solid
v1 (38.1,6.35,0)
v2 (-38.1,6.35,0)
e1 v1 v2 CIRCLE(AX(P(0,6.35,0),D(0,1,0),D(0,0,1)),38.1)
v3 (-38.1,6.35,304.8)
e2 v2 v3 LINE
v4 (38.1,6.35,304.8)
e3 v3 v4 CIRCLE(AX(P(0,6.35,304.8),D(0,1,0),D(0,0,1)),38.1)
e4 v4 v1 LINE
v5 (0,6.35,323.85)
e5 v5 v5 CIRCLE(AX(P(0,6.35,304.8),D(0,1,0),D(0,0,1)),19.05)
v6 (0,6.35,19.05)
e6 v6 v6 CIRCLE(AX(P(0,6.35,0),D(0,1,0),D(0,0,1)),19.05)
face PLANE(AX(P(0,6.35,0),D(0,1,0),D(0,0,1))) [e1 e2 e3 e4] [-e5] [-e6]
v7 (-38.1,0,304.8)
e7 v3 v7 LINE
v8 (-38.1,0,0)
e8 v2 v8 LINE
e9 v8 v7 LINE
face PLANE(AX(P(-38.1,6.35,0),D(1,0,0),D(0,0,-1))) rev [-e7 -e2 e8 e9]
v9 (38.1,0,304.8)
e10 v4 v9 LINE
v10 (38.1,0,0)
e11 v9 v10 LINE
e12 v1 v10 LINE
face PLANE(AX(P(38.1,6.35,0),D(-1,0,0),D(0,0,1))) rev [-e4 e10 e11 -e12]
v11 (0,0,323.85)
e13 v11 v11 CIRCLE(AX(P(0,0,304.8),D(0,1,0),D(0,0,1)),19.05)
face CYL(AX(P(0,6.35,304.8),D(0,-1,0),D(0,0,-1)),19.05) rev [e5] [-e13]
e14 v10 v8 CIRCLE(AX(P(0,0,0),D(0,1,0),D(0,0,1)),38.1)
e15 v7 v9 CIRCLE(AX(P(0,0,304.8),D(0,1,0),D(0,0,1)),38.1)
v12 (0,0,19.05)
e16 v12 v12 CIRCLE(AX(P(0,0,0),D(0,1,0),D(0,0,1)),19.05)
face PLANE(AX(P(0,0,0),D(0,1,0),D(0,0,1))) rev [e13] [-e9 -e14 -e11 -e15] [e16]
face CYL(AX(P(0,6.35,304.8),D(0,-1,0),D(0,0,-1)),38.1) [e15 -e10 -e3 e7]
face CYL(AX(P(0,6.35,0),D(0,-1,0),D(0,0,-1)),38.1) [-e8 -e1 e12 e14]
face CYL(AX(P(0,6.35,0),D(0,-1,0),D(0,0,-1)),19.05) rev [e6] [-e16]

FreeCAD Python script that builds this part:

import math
import FreeCAD as App
import Part
import Sketcher
Q = App.Units.Quantity

doc = App.newDocument("Part")
body = doc.addObject("PartDesign::Body", "Body")

# Sketch on XZ plane
sketch1 = body.newObject("Sketcher::SketchObject", "Sketch")
sketch1.AttachmentSupport = (doc.getObject("XZ_Plane"), [""])
sketch1.MapMode = "FlatFace"
sketch1.addGeometry(Part.LineSegment(App.Vector(-38, 0, 0), App.Vector(-38, 305, 0)), False)
sketch1.addGeometry(Part.ArcOfCircle(Part.Circle(App.Vector(0, 305, 0), App.Vector(0, 0, 1), 38), math.radians(0), math.radians(180)), False)
sketch1.addGeometry(Part.LineSegment(App.Vector(38, 305, 0), App.Vector(38, 0, 0)), False)
sketch1.addGeometry(Part.ArcOfCircle(Part.Circle(App.Vector(0, 0, 0), App.Vector(0, 0, 1), 38), math.radians(180), math.radians(360)), False)
sketch1.addGeometry(Part.Circle(App.Vector(0, 305, 0), App.Vector(0, 0, 1), 19), False)
sketch1.addGeometry(Part.Circle(App.Vector(0, 0, 0), App.Vector(0, 0, 1), 19), False)
sketch1.addConstraint(Sketcher.Constraint("Tangent", 0, 2, 1, 2))
sketch1.addConstraint(Sketcher.Constraint("Tangent", 1, 1, 2, 1))
sketch1.addConstraint(Sketcher.Constraint("Tangent", 2, 2, 3, 2))
sketch1.addConstraint(Sketcher.Constraint("Tangent", 3, 1, 0, 1))
sketch1.addConstraint(Sketcher.Constraint("Vertical", 0))
sketch1.addConstraint(Sketcher.Constraint("Vertical", 2))
sketch1.addConstraint(Sketcher.Constraint("Coincident", 3, 3, -1, 1))
sketch1.addConstraint(Sketcher.Constraint("Coincident", 5, 3, -1, 1))
sketch1.addConstraint(Sketcher.Constraint("Coincident", 4, 3, 1, 3))
sketch1.addConstraint(Sketcher.Constraint("Equal", 4, 5))
sketch1.addConstraint(Sketcher.Constraint("Diameter", 4, Q("1.5 in")))
sketch1.addConstraint(Sketcher.Constraint("Radius", 1, Q("1.5 in")))
sketch1.addConstraint(Sketcher.Constraint("DistanceY", 0, 1, 0, 2, Q("12 in")))
pad1 = body.newObject("PartDesign::Pad", "Pad")
pad1.Profile = sketch1
pad1.Length = Q("0.25 in")
pad1.Reversed = True

doc.recompute()
